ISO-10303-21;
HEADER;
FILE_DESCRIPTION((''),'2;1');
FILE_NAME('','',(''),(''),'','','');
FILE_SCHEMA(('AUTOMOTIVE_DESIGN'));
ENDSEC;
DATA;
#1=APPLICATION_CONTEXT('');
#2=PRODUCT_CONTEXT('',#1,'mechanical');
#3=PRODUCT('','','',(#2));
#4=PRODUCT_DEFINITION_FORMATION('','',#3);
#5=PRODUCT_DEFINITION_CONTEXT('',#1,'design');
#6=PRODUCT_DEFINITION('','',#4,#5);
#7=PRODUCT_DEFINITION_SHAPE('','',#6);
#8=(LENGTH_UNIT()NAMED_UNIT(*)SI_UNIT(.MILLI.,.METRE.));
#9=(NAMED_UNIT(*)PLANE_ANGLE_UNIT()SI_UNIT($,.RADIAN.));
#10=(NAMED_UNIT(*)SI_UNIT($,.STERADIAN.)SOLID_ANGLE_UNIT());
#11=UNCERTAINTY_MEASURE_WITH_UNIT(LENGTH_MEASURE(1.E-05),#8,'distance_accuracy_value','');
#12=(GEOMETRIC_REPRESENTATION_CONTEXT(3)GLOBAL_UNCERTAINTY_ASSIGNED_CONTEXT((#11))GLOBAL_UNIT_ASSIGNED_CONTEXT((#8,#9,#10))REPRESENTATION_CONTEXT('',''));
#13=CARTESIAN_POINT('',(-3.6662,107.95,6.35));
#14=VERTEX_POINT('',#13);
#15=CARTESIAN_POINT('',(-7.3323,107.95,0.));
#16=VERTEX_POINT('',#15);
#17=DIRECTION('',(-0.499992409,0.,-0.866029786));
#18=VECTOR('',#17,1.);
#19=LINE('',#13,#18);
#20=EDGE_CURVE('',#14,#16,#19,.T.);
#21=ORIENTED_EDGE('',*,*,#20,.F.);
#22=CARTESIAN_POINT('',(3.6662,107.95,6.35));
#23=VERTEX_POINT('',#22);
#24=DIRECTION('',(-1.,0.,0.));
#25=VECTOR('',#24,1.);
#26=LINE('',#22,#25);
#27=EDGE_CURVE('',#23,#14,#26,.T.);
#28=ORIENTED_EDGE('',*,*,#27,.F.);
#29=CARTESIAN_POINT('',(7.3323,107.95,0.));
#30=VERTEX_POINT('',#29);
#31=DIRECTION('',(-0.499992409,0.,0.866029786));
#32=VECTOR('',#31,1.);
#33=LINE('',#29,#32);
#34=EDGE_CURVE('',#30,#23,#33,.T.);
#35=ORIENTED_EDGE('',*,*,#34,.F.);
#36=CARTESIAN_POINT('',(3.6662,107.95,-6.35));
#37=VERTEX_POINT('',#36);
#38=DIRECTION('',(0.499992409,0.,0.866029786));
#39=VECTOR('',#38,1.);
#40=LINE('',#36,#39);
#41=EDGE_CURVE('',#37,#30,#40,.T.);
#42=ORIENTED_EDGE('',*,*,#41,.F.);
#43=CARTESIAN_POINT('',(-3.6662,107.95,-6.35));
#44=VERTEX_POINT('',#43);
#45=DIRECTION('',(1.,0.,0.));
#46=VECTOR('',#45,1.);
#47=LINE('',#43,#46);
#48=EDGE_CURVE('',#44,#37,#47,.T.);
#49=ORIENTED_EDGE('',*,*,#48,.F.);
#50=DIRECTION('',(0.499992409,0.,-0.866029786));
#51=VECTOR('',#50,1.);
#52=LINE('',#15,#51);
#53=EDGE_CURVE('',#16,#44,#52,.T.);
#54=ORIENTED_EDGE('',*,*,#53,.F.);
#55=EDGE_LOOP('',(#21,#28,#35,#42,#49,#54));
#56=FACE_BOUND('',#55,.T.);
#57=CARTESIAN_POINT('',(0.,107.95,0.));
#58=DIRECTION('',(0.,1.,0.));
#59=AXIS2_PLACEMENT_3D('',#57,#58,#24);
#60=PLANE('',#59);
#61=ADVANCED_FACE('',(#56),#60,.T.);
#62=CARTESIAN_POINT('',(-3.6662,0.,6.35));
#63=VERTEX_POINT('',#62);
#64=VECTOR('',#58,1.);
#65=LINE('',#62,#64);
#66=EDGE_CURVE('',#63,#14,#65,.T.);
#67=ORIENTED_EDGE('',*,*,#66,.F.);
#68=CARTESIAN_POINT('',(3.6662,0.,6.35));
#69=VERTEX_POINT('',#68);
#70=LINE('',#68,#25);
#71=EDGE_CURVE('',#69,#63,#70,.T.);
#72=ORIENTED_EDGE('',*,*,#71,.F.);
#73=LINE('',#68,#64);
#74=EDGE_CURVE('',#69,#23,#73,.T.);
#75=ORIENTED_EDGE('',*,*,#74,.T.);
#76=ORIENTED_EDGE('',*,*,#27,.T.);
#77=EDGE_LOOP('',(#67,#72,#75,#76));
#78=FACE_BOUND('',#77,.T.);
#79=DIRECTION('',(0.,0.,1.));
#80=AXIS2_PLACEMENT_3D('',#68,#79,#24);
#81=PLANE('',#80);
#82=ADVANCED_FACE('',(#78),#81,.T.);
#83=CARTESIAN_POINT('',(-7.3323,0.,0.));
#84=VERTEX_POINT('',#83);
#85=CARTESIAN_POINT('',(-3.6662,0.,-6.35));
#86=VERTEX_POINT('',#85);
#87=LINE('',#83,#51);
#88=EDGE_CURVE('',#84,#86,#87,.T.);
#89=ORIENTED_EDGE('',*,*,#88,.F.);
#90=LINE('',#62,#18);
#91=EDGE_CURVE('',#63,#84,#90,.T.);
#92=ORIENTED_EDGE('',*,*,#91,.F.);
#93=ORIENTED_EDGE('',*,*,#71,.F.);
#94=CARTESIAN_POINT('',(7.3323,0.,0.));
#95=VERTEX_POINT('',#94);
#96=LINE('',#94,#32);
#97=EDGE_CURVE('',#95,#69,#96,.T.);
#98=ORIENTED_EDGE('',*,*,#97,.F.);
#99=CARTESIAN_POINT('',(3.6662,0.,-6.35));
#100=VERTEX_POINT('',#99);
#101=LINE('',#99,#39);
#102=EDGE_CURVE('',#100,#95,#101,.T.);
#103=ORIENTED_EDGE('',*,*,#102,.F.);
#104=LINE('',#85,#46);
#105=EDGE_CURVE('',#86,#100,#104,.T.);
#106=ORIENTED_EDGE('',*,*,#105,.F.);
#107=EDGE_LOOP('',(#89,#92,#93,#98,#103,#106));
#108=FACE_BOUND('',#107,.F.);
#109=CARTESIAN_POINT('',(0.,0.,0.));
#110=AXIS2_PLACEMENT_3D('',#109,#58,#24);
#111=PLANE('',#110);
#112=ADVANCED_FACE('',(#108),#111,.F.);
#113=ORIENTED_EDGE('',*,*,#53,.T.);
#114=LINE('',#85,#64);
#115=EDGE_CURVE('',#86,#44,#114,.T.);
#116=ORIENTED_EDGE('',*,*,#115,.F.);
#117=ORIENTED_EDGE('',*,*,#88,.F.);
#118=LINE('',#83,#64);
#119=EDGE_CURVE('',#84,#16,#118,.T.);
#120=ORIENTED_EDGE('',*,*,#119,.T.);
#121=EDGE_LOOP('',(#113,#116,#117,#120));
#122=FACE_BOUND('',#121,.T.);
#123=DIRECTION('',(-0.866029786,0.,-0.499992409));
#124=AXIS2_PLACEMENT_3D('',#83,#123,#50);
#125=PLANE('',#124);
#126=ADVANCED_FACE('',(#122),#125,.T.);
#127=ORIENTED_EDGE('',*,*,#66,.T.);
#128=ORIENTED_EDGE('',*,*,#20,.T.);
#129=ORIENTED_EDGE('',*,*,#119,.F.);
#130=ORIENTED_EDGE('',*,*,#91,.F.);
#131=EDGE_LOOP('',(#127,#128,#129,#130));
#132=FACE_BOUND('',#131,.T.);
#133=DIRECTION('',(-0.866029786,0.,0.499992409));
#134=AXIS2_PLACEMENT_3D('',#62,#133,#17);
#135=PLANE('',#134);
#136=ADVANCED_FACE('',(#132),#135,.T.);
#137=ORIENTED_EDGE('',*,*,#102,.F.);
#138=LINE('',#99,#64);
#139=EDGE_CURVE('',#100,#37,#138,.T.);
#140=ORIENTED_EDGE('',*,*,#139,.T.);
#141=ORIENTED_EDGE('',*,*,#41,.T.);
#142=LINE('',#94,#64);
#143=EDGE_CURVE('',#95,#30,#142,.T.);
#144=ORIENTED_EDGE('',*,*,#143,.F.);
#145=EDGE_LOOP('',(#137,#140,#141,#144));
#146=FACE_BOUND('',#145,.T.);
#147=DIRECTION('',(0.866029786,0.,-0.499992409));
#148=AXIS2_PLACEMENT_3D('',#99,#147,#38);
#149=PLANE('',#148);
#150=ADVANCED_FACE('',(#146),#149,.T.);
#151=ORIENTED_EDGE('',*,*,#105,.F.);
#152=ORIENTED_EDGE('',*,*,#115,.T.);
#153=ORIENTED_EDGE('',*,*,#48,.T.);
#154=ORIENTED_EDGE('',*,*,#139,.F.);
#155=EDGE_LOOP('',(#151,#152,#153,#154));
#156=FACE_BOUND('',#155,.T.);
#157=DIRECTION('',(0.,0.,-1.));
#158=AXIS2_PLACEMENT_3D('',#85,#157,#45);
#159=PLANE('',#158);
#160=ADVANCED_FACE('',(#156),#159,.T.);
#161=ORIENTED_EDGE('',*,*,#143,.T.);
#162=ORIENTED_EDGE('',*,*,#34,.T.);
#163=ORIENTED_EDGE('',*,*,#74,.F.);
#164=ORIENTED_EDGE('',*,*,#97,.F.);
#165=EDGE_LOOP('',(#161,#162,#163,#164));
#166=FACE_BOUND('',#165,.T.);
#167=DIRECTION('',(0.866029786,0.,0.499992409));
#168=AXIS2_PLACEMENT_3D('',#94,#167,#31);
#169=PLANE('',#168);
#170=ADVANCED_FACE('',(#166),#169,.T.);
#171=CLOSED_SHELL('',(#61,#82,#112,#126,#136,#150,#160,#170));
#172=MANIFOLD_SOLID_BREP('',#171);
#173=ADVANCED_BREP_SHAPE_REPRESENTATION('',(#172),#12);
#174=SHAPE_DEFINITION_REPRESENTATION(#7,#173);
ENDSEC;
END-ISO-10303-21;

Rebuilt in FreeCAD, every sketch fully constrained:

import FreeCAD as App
import Part
import Sketcher
Q = App.Units.Quantity

doc = App.newDocument("Part")
body = doc.addObject("PartDesign::Body", "Body")

sketch1 = body.newObject("Sketcher::SketchObject", "Sketch")
sketch1.AttachmentSupport = (doc.getObject("XZ_Plane"), [""])
sketch1.MapMode = "FlatFace"
sketch1.addGeometry([
    Part.LineSegment(App.Vector(7.3323, 0, 0), App.Vector(3.6662, -6.35, 0)),
    Part.LineSegment(App.Vector(3.6662, -6.35, 0), App.Vector(-3.6662, -6.35, 0)),
    Part.LineSegment(App.Vector(-3.6662, -6.35, 0), App.Vector(-7.3323, 0, 0)),
    Part.LineSegment(App.Vector(-7.3323, 0, 0), App.Vector(-3.6662, 6.35, 0)),
    Part.LineSegment(App.Vector(-3.6662, 6.35, 0), App.Vector(3.6662, 6.35, 0)),
    Part.LineSegment(App.Vector(3.6662, 6.35, 0), App.Vector(7.3323, 0, 0)),
], False)
sketch1.addConstraint([
    Sketcher.Constraint("Coincident", 0, 2, 1, 1),
    Sketcher.Constraint("Coincident", 1, 2, 2, 1),
    Sketcher.Constraint("Coincident", 2, 2, 3, 1),
    Sketcher.Constraint("Coincident", 3, 2, 4, 1),
    Sketcher.Constraint("Coincident", 4, 2, 5, 1),
    Sketcher.Constraint("Coincident", 5, 2, 0, 1),
    Sketcher.Constraint("Horizontal", 1),
    Sketcher.Constraint("Horizontal", 4),
    Sketcher.Constraint("Symmetric", 0, 2, 3, 2, -1, 1),
    Sketcher.Constraint("Symmetric", 2, 2, 5, 2, -1, 1),
    Sketcher.Constraint("PointOnObject", 2, 2, -1),
    Sketcher.Constraint("Parallel", 2, 5),
    Sketcher.Constraint("Vertical", 1, 2, 3, 2),
    Sketcher.Constraint("DistanceY", 1, 2, 3, 2, Q("0.5 in")),
    Sketcher.Constraint("Angle", 0, Q("-119.9995 deg")),
    Sketcher.Constraint("DistanceX", 2, 2, 0, 2, Q("0.433 in")),
])
pad1 = body.newObject("PartDesign::Pad", "Pad")
pad1.Profile = sketch1
pad1.Length = Q("4.25 in")
pad1.Reversed = True

doc.recompute()
